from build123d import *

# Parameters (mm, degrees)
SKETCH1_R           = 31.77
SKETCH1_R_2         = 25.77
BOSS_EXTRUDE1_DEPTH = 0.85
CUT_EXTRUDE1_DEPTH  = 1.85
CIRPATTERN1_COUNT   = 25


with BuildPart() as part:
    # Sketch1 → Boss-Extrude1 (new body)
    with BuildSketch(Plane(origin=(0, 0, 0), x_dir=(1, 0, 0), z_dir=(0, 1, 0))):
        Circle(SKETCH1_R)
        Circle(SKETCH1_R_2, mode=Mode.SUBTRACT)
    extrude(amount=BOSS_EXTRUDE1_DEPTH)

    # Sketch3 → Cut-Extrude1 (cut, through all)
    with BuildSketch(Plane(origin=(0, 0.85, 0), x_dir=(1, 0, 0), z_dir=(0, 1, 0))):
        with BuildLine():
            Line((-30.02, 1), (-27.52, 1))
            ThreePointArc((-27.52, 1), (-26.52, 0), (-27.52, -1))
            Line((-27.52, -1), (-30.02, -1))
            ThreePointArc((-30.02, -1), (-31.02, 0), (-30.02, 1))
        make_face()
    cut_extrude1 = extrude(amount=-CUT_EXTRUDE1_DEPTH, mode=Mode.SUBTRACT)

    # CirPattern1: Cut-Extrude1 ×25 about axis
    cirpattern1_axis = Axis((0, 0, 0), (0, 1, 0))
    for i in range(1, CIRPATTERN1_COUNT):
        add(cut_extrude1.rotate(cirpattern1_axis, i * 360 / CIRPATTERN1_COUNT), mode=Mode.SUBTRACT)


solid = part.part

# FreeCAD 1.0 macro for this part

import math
import FreeCAD as App
import Part
import Sketcher
from FreeCAD import Vector

doc = App.newDocument("Part")
body = doc.addObject("PartDesign::Body", "Body")

# Sketch on XZ plane
sketch1 = doc.addObject("Sketcher::SketchObject", "Sketch")
body.addObject(sketch1)
sketch1.AttachmentSupport = (doc.XZ_Plane, [""])
sketch1.MapMode = "FlatFace"
sketch1.addGeometry(Part.Circle(Vector(0, 0, 0), Vector(0, 0, 1), 32), False)
sketch1.addGeometry(Part.Circle(Vector(0, 0, 0), Vector(0, 0, 1), 26), False)
sketch1.addConstraint(Sketcher.Constraint("Coincident", 0, 3, -1, 1))
sketch1.addConstraint(Sketcher.Constraint("Coincident", 1, 3, -1, 1))
sketch1.addConstraint(Sketcher.Constraint("Diameter", 0, 63.54))
sketch1.addConstraint(Sketcher.Constraint("Diameter", 1, 51.54))
pad1 = doc.addObject("PartDesign::Pad", "Pad")
body.addObject(pad1)
pad1.Profile = sketch1
pad1.Length = 0.85
pad1.Reversed = True

# Sketch on XZ plane
sketch2 = doc.addObject("Sketcher::SketchObject", "Sketch001")
body.addObject(sketch2)
sketch2.AttachmentSupport = (doc.XZ_Plane, [""])
sketch2.MapMode = "FlatFace"
sketch2.AttachmentOffset = App.Placement(Vector(0, 0, -0.85), App.Rotation())
sketch2.addGeometry(Part.LineSegment(Vector(-27.5, -1, 0), Vector(-30, -1, 0)), False)
sketch2.addGeometry(Part.ArcOfCircle(Part.Circle(Vector(-30, 0, 0), Vector(0, 0, 1), 1), math.radians(90), math.radians(270)), False)
sketch2.addGeometry(Part.LineSegment(Vector(-30, 1, 0), Vector(-27.5, 1, 0)), False)
sketch2.addGeometry(Part.ArcOfCircle(Part.Circle(Vector(-27.5, 0, 0), Vector(0, 0, 1), 1), math.radians(-90), math.radians(90)), False)
sketch2.addConstraint(Sketcher.Constraint("Tangent", 0, 2, 1, 2))
sketch2.addConstraint(Sketcher.Constraint("Tangent", 1, 1, 2, 1))
sketch2.addConstraint(Sketcher.Constraint("Tangent", 2, 2, 3, 2))
sketch2.addConstraint(Sketcher.Constraint("Tangent", 3, 1, 0, 1))
sketch2.addConstraint(Sketcher.Constraint("Horizontal", 0))
sketch2.addConstraint(Sketcher.Constraint("Horizontal", 2))
sketch2.addConstraint(Sketcher.Constraint("PointOnObject", 1, 3, -1))
sketch2.addConstraint(Sketcher.Constraint("Radius", 1, 1.0))
sketch2.addConstraint(Sketcher.Constraint("DistanceX", 0, 2, 0, 1, 2.5))
sketch2.addConstraint(Sketcher.Constraint("DistanceX", 1, 3, -1, 1, 30.02))
pocket1 = doc.addObject("PartDesign::Pocket", "Pocket")
body.addObject(pocket1)
pocket1.Profile = sketch2
pocket1.Type = "ThroughAll"
pocket1.Reversed = True
doc.recompute()

polarpattern = doc.addObject("PartDesign::PolarPattern", "PolarPattern")
body.addObject(polarpattern)
polarpattern.Originals = [pocket1]
polarpattern.Axis = (doc.Y_Axis, [""])
polarpattern.Angle = 360
polarpattern.Occurrences = 25
body.Tip = polarpattern

doc.recompute()
